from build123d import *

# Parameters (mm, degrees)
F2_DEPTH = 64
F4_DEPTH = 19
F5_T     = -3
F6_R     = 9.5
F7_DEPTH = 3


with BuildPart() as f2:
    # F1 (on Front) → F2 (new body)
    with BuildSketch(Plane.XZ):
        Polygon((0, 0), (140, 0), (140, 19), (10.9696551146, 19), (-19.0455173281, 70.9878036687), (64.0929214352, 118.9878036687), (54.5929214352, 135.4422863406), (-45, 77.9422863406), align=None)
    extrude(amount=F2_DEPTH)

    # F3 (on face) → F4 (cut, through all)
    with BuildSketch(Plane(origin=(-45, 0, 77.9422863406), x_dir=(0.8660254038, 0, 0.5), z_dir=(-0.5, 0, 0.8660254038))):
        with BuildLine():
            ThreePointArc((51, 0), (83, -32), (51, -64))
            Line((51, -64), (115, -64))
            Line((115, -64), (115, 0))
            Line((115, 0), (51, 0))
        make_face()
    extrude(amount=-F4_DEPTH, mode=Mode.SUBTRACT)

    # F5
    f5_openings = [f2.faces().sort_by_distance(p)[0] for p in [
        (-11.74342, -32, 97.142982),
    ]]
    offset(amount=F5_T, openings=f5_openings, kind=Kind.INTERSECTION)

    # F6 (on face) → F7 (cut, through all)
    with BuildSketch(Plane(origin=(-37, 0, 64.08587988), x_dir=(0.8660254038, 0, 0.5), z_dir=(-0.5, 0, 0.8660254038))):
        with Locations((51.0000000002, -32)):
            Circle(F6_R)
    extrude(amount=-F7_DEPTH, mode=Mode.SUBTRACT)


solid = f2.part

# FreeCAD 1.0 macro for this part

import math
import FreeCAD as App
import Part
import Sketcher

V = App.Vector
Q = App.Units.Quantity


def faces_at(feature, points):
    """Names of the faces that lie closest to the given points."""
    faces = feature.Shape.Faces
    near = lambda p: min(range(len(faces)), key=lambda i: faces[i].distToShape(Part.Vertex(*p))[0])
    return sorted({f"Face{near(p) + 1}" for p in points})

doc = App.newDocument("Part")
body = doc.addObject("PartDesign::Body", "Body")

sketch1 = doc.addObject("Sketcher::SketchObject", "Sketch")
body.addObject(sketch1)
sketch1.AttachmentSupport = (doc.XZ_Plane, [""])
sketch1.MapMode = "FlatFace"
sketch1.addGeometry([
    Part.LineSegment(V(0, 0, 0), V(140, 0, 0)),
    Part.LineSegment(V(140, 0, 0), V(140, 19, 0)),
    Part.LineSegment(V(140, 19, 0), V(11, 19, 0)),
    Part.LineSegment(V(11, 19, 0), V(-19, 71, 0)),
    Part.LineSegment(V(-19, 71, 0), V(64, 119, 0)),
    Part.LineSegment(V(64, 119, 0), V(55, 135, 0)),
    Part.LineSegment(V(55, 135, 0), V(-45, 78, 0)),
    Part.LineSegment(V(-45, 78, 0), V(0, 0, 0)),
], False)
sketch1.addConstraint([
    Sketcher.Constraint("Coincident", 0, 2, 1, 1),
    Sketcher.Constraint("Coincident", 1, 2, 2, 1),
    Sketcher.Constraint("Coincident", 2, 2, 3, 1),
    Sketcher.Constraint("Coincident", 3, 2, 4, 1),
    Sketcher.Constraint("Coincident", 4, 2, 5, 1),
    Sketcher.Constraint("Coincident", 5, 2, 6, 1),
    Sketcher.Constraint("Coincident", 6, 2, 7, 1),
    Sketcher.Constraint("Coincident", 7, 2, 0, 1),
    Sketcher.Constraint("Horizontal", 0),
    Sketcher.Constraint("Vertical", 1),
    Sketcher.Constraint("Horizontal", 2),
    Sketcher.Constraint("Coincident", 7, 2, -1, 1),
    Sketcher.Constraint("Perpendicular", 3, 4),
    Sketcher.Constraint("Perpendicular", 4, 5),
    Sketcher.Constraint("Perpendicular", 5, 6),
    Sketcher.Constraint("Perpendicular", 6, 7),
    Sketcher.Constraint("DistanceX", 0, 1, 0, 2, Q("140 mm")),
    Sketcher.Constraint("DistanceY", 1, 1, 1, 2, Q("19 mm")),
    Sketcher.Constraint("Angle", 3, Q("120 deg")),
    Sketcher.Constraint("Distance", 4, Q("96 mm")),
    Sketcher.Constraint("Distance", 5, Q("19 mm")),
    Sketcher.Constraint("Distance", 6, Q("115 mm")),
    Sketcher.Constraint("Distance", 7, Q("90 mm")),
])
pad1 = doc.addObject("PartDesign::Pad", "Pad")
body.addObject(pad1)
pad1.Profile = sketch1
pad1.Length = 64

sketch2 = doc.addObject("Sketcher::SketchObject", "Sketch001")
body.addObject(sketch2)
sketch2.Placement = App.Placement(V(-45, 0, 77.942286), App.Rotation(V(0.866025404, 0, 0.5), V(0, 1, 0), V(-0.5, 0, 0.866025404), "ZXY"))
sketch2.addGeometry([
    Part.ArcOfCircle(Part.Circle(V(51, -32, 0), V(0, 0, 1), 32), math.radians(-90), math.radians(90)),
    Part.LineSegment(V(51, -64, 0), V(115, -64, 0)),
    Part.LineSegment(V(115, -64, 0), V(115, 0, 0)),
    Part.LineSegment(V(115, 0, 0), V(51, 0, 0)),
], False)
sketch2.addConstraint([
    Sketcher.Constraint("Tangent", 0, 1, 1, 1),
    Sketcher.Constraint("Coincident", 1, 2, 2, 1),
    Sketcher.Constraint("Coincident", 2, 2, 3, 1),
    Sketcher.Constraint("Tangent", 3, 2, 0, 2),
    Sketcher.Constraint("Horizontal", 1),
    Sketcher.Constraint("Vertical", 2),
    Sketcher.Constraint("Horizontal", 3),
    Sketcher.Constraint("PointOnObject", 2, 2, -1),
    Sketcher.Constraint("Equal", 3, 2),
    Sketcher.Constraint("Radius", 0, Q("32 mm")),
    Sketcher.Constraint("DistanceX", -1, 1, 0, 3, Q("51 mm")),
])
pocket1 = doc.addObject("PartDesign::Pocket", "Pocket")
body.addObject(pocket1)
pocket1.Profile = sketch2
pocket1.Length = 19
doc.recompute()

thickness = doc.addObject("PartDesign::Thickness", "Thickness")
body.addObject(thickness)
thickness.Base = (pocket1, faces_at(pocket1, [(-9.06, -32, 98.692)]))
thickness.Value = 3
thickness.Reversed = True
thickness.Join = "Intersection"

sketch3 = doc.addObject("Sketcher::SketchObject", "Sketch002")
body.addObject(sketch3)
sketch3.Placement = App.Placement(V(-37, 0, 64.08588), App.Rotation(V(0.866025404, 0, 0.5), V(0, 1, 0), V(-0.5, 0, 0.866025404), "ZXY"))
sketch3.addGeometry(Part.Circle(V(51, -32, 0), V(0, 0, 1), 10), False)
sketch3.addConstraint([
    Sketcher.Constraint("Diameter", 0, Q("19 mm")),
    Sketcher.Constraint("DistanceX", -1, 1, 0, 3, Q("51 mm")),
    Sketcher.Constraint("DistanceY", 0, 3, -1, 1, Q("32 mm")),
])
pocket2 = doc.addObject("PartDesign::Pocket", "Pocket001")
body.addObject(pocket2)
pocket2.Profile = sketch3
pocket2.Length = 3

doc.recompute()
